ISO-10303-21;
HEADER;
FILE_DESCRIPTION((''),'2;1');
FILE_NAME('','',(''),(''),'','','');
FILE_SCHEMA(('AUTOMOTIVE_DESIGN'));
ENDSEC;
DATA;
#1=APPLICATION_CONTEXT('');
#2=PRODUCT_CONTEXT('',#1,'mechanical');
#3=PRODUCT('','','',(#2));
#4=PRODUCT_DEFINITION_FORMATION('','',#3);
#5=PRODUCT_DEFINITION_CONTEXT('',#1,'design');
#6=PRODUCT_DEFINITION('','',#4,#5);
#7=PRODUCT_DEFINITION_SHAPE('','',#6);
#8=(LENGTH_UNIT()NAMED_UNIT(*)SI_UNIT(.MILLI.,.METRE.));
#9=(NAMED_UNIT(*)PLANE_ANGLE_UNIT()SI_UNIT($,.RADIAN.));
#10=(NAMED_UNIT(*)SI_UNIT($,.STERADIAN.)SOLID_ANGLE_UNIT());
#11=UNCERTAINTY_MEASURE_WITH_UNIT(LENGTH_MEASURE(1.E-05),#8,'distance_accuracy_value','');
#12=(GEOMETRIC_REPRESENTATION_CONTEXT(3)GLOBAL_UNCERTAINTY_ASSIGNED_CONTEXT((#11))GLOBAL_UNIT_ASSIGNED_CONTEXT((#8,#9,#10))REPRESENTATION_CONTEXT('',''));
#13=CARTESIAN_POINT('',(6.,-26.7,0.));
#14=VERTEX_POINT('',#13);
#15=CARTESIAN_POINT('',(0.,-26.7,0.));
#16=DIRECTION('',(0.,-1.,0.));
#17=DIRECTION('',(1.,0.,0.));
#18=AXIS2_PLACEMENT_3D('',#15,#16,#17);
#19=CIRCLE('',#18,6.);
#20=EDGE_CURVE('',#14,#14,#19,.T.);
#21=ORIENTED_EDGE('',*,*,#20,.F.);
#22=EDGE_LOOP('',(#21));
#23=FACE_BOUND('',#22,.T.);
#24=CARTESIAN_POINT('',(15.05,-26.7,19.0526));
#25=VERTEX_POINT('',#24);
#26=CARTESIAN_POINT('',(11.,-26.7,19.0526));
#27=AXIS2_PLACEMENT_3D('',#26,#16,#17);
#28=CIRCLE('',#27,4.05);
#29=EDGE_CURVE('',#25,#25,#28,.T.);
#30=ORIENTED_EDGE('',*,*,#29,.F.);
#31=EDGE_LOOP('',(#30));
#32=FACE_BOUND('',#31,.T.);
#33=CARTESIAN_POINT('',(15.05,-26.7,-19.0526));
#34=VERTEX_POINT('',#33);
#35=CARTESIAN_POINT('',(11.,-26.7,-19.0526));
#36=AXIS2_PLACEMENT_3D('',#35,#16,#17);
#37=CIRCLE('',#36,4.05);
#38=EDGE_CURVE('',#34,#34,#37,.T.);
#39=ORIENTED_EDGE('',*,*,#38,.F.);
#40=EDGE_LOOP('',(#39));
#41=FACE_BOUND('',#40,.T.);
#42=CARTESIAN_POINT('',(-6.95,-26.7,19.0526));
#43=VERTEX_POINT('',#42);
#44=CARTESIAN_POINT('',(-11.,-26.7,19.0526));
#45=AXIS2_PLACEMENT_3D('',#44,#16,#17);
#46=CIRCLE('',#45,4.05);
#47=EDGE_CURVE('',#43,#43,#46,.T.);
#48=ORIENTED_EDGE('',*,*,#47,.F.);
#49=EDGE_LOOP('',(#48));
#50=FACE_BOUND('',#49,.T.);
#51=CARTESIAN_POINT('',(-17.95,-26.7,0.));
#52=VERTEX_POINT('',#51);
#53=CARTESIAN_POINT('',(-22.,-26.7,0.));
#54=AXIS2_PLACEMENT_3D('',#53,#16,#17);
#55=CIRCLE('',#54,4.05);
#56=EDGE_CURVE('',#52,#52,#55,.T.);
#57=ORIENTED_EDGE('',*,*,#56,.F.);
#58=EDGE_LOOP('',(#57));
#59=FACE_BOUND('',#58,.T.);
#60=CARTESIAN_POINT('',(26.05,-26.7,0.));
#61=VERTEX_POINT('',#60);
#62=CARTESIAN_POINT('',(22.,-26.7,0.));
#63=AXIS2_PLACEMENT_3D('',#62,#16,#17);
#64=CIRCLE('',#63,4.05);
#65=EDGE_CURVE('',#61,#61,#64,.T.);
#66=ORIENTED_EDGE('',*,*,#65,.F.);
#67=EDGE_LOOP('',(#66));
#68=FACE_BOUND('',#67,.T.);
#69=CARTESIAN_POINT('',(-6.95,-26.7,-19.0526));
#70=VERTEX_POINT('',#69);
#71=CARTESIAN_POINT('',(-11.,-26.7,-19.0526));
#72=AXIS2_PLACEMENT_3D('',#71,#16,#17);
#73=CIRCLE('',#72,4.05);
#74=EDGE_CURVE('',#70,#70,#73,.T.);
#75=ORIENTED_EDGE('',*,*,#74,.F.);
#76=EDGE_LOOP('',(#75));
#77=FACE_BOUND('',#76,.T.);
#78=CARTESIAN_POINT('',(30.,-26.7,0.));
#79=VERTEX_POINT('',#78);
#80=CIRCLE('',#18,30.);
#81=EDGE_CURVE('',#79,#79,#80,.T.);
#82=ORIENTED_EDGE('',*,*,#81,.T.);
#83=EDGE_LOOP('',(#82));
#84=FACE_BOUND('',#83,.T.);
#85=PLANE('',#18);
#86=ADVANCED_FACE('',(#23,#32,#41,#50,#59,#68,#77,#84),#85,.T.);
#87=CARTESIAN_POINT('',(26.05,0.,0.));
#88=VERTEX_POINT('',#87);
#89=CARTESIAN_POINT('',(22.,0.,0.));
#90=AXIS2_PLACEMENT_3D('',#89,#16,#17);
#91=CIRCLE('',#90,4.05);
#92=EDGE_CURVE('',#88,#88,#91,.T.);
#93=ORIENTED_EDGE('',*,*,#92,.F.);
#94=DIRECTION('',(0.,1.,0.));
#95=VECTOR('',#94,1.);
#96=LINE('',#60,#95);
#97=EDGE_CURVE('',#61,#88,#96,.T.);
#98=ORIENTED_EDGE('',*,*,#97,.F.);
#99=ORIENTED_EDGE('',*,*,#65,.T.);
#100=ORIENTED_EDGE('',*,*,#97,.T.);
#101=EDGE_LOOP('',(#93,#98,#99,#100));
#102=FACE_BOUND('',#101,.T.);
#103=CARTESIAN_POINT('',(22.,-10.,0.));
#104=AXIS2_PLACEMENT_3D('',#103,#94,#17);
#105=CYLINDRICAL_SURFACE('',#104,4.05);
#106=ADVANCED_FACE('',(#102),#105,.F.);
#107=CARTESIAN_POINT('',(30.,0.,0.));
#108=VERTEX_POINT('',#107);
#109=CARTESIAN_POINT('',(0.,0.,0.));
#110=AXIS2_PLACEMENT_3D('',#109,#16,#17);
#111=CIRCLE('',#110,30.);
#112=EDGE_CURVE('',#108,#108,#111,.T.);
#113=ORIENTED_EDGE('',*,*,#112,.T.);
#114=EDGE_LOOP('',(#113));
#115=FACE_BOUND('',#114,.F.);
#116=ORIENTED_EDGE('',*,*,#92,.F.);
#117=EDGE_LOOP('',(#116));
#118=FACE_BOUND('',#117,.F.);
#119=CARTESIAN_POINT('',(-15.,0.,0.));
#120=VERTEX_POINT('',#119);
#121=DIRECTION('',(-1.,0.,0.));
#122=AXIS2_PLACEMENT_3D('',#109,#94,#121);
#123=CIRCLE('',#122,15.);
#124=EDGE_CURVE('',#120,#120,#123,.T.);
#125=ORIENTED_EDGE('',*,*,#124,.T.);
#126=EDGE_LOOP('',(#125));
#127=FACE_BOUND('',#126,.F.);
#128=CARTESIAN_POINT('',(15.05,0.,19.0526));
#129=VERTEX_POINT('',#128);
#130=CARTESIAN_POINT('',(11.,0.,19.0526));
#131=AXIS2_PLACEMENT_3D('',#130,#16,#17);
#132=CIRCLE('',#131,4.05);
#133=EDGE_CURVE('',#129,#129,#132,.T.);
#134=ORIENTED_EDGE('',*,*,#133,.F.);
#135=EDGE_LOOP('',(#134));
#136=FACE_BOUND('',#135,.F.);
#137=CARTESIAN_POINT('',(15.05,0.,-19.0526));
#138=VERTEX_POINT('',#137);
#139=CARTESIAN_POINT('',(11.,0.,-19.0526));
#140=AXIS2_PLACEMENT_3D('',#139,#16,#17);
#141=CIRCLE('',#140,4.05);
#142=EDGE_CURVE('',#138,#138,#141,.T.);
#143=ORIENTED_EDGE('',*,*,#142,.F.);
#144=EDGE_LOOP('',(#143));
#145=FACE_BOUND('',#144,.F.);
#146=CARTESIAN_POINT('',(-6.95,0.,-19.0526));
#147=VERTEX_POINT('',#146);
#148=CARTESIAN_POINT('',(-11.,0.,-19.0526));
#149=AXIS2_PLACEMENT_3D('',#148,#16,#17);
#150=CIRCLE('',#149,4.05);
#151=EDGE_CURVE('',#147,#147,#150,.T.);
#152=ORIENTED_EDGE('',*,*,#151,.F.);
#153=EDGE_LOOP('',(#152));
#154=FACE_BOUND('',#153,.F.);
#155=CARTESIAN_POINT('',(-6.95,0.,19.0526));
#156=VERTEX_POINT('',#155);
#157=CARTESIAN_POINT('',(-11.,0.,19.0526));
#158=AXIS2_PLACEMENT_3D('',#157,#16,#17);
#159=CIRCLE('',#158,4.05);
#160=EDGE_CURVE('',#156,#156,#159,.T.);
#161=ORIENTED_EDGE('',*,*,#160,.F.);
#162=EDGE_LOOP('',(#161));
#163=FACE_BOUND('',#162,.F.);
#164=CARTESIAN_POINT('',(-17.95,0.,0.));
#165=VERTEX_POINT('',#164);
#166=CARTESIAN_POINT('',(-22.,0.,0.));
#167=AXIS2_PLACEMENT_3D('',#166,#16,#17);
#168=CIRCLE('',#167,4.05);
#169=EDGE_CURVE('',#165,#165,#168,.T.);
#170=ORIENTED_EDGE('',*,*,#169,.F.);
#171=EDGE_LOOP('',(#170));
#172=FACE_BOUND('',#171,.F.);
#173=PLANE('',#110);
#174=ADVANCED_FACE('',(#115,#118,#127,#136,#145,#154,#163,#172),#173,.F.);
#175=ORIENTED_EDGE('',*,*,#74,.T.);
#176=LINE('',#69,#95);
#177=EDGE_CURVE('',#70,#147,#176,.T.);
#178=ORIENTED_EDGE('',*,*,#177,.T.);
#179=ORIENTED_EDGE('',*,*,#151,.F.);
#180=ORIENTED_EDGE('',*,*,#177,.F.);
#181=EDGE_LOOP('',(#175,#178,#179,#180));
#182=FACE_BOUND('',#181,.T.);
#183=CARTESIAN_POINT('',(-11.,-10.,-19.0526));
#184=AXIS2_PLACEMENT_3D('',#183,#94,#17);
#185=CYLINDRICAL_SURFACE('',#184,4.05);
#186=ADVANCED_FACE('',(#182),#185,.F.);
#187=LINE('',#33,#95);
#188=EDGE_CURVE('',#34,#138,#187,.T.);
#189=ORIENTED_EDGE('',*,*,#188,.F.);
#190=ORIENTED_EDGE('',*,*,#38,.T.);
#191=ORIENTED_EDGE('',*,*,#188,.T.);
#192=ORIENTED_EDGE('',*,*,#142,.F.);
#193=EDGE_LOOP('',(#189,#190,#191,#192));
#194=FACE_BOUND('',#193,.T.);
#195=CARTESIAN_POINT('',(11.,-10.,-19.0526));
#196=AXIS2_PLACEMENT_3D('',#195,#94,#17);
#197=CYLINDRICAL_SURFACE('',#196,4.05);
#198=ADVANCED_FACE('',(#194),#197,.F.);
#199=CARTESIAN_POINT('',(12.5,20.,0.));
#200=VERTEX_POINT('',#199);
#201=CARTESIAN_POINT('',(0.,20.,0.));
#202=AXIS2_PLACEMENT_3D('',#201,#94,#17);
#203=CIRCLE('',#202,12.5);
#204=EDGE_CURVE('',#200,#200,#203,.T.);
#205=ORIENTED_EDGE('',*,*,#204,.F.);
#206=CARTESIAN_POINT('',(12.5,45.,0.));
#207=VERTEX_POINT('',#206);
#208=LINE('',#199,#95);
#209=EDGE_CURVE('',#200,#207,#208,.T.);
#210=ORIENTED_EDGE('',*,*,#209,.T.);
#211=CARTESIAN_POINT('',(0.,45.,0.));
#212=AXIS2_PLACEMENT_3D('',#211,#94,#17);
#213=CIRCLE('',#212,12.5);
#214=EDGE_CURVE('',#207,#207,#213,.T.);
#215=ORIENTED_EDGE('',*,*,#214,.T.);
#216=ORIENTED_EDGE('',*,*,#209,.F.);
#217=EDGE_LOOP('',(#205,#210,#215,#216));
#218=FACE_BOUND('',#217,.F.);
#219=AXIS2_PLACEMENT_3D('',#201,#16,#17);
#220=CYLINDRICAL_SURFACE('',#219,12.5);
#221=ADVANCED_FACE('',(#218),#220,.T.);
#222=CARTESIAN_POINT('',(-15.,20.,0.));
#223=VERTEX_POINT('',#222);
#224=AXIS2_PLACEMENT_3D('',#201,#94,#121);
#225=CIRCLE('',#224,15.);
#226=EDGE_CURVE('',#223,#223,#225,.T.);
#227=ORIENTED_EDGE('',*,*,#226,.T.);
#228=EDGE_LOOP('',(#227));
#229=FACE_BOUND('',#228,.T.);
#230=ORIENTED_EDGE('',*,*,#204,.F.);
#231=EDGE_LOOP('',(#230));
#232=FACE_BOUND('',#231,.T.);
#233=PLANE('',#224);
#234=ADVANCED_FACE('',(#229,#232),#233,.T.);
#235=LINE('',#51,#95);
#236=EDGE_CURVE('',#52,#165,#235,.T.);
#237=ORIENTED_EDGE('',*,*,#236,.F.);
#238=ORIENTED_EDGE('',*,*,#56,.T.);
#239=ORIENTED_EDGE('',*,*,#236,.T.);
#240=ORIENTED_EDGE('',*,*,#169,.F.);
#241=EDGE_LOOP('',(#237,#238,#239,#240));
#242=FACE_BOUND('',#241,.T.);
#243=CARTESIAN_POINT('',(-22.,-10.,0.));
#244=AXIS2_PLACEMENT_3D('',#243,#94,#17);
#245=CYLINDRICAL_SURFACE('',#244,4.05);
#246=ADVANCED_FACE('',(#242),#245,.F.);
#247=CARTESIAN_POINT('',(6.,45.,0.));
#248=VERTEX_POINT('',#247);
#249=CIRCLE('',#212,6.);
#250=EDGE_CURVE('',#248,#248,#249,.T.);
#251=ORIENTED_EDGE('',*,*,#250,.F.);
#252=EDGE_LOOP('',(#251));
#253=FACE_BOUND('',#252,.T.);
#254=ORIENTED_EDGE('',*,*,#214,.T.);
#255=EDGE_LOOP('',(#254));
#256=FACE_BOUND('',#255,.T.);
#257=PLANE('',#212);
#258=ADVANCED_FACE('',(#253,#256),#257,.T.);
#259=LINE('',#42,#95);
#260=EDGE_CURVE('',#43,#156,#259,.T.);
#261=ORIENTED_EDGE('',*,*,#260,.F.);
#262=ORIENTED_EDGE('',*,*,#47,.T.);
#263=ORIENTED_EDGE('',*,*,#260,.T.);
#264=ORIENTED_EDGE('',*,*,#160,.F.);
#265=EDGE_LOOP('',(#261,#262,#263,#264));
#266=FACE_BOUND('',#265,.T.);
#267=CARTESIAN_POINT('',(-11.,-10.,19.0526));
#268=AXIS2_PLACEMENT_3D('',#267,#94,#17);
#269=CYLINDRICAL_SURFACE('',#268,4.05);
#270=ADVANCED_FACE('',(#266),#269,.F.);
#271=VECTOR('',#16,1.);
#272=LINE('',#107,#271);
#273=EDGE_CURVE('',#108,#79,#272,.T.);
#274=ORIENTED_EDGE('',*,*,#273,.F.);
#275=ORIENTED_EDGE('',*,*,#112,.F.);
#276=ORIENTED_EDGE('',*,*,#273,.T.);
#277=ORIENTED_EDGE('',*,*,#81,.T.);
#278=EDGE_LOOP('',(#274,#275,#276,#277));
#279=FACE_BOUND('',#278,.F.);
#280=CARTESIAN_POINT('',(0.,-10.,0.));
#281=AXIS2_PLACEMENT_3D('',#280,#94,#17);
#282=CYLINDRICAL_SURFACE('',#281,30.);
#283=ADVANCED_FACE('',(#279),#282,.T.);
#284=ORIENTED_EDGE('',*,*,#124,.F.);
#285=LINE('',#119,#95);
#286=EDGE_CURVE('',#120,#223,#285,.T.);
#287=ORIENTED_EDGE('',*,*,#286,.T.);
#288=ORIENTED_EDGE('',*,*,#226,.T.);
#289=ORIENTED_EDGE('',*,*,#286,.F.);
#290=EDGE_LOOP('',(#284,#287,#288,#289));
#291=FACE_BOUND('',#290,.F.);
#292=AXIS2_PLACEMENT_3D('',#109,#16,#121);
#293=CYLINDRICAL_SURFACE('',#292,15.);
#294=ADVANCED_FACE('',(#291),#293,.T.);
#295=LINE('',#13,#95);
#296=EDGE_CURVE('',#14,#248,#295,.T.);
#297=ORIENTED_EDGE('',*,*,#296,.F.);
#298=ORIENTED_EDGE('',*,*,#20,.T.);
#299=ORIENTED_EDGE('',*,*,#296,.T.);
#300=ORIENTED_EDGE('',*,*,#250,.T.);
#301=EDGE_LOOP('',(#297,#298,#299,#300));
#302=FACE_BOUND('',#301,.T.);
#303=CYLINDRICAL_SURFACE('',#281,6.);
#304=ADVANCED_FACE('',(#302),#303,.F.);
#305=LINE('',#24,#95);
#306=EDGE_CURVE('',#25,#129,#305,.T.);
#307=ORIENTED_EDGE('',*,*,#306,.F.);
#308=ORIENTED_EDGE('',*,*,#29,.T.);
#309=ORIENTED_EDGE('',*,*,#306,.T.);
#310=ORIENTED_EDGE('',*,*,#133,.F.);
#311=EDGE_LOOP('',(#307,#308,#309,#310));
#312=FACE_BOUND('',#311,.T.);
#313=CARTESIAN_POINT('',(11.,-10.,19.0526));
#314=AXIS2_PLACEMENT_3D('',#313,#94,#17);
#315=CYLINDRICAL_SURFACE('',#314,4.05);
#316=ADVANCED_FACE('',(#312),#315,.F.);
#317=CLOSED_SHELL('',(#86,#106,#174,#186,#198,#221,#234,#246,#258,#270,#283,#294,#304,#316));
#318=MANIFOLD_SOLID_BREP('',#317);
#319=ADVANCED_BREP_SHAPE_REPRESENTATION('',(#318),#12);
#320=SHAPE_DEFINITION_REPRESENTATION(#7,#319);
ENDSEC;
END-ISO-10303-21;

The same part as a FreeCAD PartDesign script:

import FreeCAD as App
import Part
import Sketcher

V = App.Vector

doc = App.newDocument("Part")
body = doc.addObject("PartDesign::Body", "Body")

# Sketch on XZ plane
sketch1 = body.newObject("Sketcher::SketchObject", "Sketch")
sketch1.AttachmentSupport = (doc.getObject("XZ_Plane"), [""])
sketch1.MapMode = "FlatFace"
sketch1.addGeometry(Part.Circle(V(0, 0, 0), V(0, 0, 1), 15), False)
sketch1.addConstraint([
    Sketcher.Constraint("Coincident", 0, 3, -1, 1),
    Sketcher.Constraint("Diameter", 0, 30.0),
])
pad1 = body.newObject("PartDesign::Pad", "Pad")
pad1.Profile = sketch1
pad1.Length = 20
pad1.Reversed = True

# Sketch on XZ plane
sketch2 = body.newObject("Sketcher::SketchObject", "Sketch001")
sketch2.AttachmentSupport = (doc.getObject("XZ_Plane"), [""])
sketch2.MapMode = "FlatFace"
sketch2.AttachmentOffset = App.Placement(V(0, 0, -20), App.Rotation())
sketch2.addGeometry(Part.Circle(V(0, 0, 0), V(0, 0, 1), 12), False)
sketch2.addConstraint([
    Sketcher.Constraint("Coincident", 0, 3, -1, 1),
    Sketcher.Constraint("Diameter", 0, 25.0),
])
pad2 = body.newObject("PartDesign::Pad", "Pad001")
pad2.Profile = sketch2
pad2.Length = 25
pad2.Reversed = True

# Sketch on XZ plane
sketch3 = body.newObject("Sketcher::SketchObject", "Sketch002")
sketch3.AttachmentSupport = (doc.getObject("XZ_Plane"), [""])
sketch3.MapMode = "FlatFace"
sketch3.AttachmentOffset = App.Placement(V(0, 0, -45), App.Rotation())
sketch3.addGeometry(Part.Circle(V(0, 0, 0), V(0, 0, 1), 6), False)
sketch3.addConstraint([
    Sketcher.Constraint("Coincident", 0, 3, -1, 1),
    Sketcher.Constraint("Diameter", 0, 12.0),
])
pocket1 = body.newObject("PartDesign::Pocket", "Pocket")
pocket1.Profile = sketch3
pocket1.Length = 100
pocket1.Reversed = True

# Sketch on XZ plane
sketch4 = body.newObject("Sketcher::SketchObject", "Sketch003")
sketch4.AttachmentSupport = (doc.getObject("XZ_Plane"), [""])
sketch4.MapMode = "FlatFace"
sketch4.addGeometry([
    Part.Circle(V(0, 0, 0), V(0, 0, 1), 30),  # 0
    Part.Circle(V(-11, -19.1, 0), V(0, 0, 1), 4),  # 1
    Part.Circle(V(11, -19.1, 0), V(0, 0, 1), 4),  # 2
    Part.Circle(V(-22, 0, 0), V(0, 0, 1), 4),  # 3
    Part.Circle(V(-11, 19.1, 0), V(0, 0, 1), 4),  # 4
    Part.Circle(V(0, 0, 0), V(0, 0, 1), 6),  # 5
    Part.Circle(V(22, 0, 0), V(0, 0, 1), 4),  # 6
    Part.Circle(V(11, 19.1, 0), V(0, 0, 1), 4),  # 7
], False)
sketch4.addConstraint([
    Sketcher.Constraint("Coincident", 0, 3, -1, 1),
    Sketcher.Constraint("Coincident", 5, 3, -1, 1),
    Sketcher.Constraint("Equal", 1, 2),
    Sketcher.Constraint("Equal", 2, 3),
    Sketcher.Constraint("Equal", 3, 4),
    Sketcher.Constraint("Equal", 4, 6),
    Sketcher.Constraint("Equal", 6, 7),
    Sketcher.Constraint("Symmetric", 2, 3, 4, 3, -1, 1),
    Sketcher.Constraint("Symmetric", 3, 3, 6, 3, -1, 1),
    Sketcher.Constraint("Symmetric", 1, 3, 7, 3, -1, 1),
    Sketcher.Constraint("Symmetric", 1, 3, 2, 3, -2),
    Sketcher.Constraint("PointOnObject", 3, 3, -1),
    Sketcher.Constraint("Diameter", 0, 60.0),
    Sketcher.Constraint("Diameter", 5, 12.0),
    Sketcher.Constraint("Diameter", 1, 8.1),
    Sketcher.Constraint("DistanceX", 3, 3, -1, 1, 22.0),
    Sketcher.Constraint("DistanceX", 1, 3, 2, 3, 22.0),
    Sketcher.Constraint("DistanceY", 1, 3, -1, 1, 19.0526),
])
pad3 = body.newObject("PartDesign::Pad", "Pad002")
pad3.Profile = sketch4
pad3.Length = 10

# Sketch on XZ plane
sketch5 = body.newObject("Sketcher::SketchObject", "Sketch004")
sketch5.AttachmentSupport = (doc.getObject("XZ_Plane"), [""])
sketch5.MapMode = "FlatFace"
sketch5.AttachmentOffset = App.Placement(V(0, 0, 10), App.Rotation())
sketch5.addGeometry([
    Part.Circle(V(0, 0, 0), V(0, 0, 1), 30),  # 0
    Part.Circle(V(-11, -19.1, 0), V(0, 0, 1), 4),  # 1
    Part.Circle(V(11, -19.1, 0), V(0, 0, 1), 4),  # 2
    Part.Circle(V(-22, 0, 0), V(0, 0, 1), 4),  # 3
    Part.Circle(V(-11, 19.1, 0), V(0, 0, 1), 4),  # 4
    Part.Circle(V(0, 0, 0), V(0, 0, 1), 6),  # 5
    Part.Circle(V(22, 0, 0), V(0, 0, 1), 4),  # 6
    Part.Circle(V(11, 19.1, 0), V(0, 0, 1), 4),  # 7
], False)
sketch5.addConstraint([
    Sketcher.Constraint("Coincident", 0, 3, -1, 1),
    Sketcher.Constraint("Coincident", 5, 3, -1, 1),
    Sketcher.Constraint("Equal", 1, 2),
    Sketcher.Constraint("Equal", 2, 3),
    Sketcher.Constraint("Equal", 3, 4),
    Sketcher.Constraint("Equal", 4, 6),
    Sketcher.Constraint("Equal", 6, 7),
    Sketcher.Constraint("Symmetric", 2, 3, 4, 3, -1, 1),
    Sketcher.Constraint("Symmetric", 3, 3, 6, 3, -1, 1),
    Sketcher.Constraint("Symmetric", 1, 3, 7, 3, -1, 1),
    Sketcher.Constraint("Symmetric", 1, 3, 2, 3, -2),
    Sketcher.Constraint("PointOnObject", 3, 3, -1),
    Sketcher.Constraint("Diameter", 0, 60.0),
    Sketcher.Constraint("Diameter", 5, 12.0),
    Sketcher.Constraint("Diameter", 1, 8.1),
    Sketcher.Constraint("DistanceX", 1, 3, -1, 1, 11.0),
    Sketcher.Constraint("DistanceX", 3, 3, -1, 1, 22.0),
    Sketcher.Constraint("DistanceY", 1, 3, -1, 1, 19.0526),
])
pad4 = body.newObject("PartDesign::Pad", "Pad003")
pad4.Profile = sketch5
pad4.Length = 16.7

doc.recompute()
